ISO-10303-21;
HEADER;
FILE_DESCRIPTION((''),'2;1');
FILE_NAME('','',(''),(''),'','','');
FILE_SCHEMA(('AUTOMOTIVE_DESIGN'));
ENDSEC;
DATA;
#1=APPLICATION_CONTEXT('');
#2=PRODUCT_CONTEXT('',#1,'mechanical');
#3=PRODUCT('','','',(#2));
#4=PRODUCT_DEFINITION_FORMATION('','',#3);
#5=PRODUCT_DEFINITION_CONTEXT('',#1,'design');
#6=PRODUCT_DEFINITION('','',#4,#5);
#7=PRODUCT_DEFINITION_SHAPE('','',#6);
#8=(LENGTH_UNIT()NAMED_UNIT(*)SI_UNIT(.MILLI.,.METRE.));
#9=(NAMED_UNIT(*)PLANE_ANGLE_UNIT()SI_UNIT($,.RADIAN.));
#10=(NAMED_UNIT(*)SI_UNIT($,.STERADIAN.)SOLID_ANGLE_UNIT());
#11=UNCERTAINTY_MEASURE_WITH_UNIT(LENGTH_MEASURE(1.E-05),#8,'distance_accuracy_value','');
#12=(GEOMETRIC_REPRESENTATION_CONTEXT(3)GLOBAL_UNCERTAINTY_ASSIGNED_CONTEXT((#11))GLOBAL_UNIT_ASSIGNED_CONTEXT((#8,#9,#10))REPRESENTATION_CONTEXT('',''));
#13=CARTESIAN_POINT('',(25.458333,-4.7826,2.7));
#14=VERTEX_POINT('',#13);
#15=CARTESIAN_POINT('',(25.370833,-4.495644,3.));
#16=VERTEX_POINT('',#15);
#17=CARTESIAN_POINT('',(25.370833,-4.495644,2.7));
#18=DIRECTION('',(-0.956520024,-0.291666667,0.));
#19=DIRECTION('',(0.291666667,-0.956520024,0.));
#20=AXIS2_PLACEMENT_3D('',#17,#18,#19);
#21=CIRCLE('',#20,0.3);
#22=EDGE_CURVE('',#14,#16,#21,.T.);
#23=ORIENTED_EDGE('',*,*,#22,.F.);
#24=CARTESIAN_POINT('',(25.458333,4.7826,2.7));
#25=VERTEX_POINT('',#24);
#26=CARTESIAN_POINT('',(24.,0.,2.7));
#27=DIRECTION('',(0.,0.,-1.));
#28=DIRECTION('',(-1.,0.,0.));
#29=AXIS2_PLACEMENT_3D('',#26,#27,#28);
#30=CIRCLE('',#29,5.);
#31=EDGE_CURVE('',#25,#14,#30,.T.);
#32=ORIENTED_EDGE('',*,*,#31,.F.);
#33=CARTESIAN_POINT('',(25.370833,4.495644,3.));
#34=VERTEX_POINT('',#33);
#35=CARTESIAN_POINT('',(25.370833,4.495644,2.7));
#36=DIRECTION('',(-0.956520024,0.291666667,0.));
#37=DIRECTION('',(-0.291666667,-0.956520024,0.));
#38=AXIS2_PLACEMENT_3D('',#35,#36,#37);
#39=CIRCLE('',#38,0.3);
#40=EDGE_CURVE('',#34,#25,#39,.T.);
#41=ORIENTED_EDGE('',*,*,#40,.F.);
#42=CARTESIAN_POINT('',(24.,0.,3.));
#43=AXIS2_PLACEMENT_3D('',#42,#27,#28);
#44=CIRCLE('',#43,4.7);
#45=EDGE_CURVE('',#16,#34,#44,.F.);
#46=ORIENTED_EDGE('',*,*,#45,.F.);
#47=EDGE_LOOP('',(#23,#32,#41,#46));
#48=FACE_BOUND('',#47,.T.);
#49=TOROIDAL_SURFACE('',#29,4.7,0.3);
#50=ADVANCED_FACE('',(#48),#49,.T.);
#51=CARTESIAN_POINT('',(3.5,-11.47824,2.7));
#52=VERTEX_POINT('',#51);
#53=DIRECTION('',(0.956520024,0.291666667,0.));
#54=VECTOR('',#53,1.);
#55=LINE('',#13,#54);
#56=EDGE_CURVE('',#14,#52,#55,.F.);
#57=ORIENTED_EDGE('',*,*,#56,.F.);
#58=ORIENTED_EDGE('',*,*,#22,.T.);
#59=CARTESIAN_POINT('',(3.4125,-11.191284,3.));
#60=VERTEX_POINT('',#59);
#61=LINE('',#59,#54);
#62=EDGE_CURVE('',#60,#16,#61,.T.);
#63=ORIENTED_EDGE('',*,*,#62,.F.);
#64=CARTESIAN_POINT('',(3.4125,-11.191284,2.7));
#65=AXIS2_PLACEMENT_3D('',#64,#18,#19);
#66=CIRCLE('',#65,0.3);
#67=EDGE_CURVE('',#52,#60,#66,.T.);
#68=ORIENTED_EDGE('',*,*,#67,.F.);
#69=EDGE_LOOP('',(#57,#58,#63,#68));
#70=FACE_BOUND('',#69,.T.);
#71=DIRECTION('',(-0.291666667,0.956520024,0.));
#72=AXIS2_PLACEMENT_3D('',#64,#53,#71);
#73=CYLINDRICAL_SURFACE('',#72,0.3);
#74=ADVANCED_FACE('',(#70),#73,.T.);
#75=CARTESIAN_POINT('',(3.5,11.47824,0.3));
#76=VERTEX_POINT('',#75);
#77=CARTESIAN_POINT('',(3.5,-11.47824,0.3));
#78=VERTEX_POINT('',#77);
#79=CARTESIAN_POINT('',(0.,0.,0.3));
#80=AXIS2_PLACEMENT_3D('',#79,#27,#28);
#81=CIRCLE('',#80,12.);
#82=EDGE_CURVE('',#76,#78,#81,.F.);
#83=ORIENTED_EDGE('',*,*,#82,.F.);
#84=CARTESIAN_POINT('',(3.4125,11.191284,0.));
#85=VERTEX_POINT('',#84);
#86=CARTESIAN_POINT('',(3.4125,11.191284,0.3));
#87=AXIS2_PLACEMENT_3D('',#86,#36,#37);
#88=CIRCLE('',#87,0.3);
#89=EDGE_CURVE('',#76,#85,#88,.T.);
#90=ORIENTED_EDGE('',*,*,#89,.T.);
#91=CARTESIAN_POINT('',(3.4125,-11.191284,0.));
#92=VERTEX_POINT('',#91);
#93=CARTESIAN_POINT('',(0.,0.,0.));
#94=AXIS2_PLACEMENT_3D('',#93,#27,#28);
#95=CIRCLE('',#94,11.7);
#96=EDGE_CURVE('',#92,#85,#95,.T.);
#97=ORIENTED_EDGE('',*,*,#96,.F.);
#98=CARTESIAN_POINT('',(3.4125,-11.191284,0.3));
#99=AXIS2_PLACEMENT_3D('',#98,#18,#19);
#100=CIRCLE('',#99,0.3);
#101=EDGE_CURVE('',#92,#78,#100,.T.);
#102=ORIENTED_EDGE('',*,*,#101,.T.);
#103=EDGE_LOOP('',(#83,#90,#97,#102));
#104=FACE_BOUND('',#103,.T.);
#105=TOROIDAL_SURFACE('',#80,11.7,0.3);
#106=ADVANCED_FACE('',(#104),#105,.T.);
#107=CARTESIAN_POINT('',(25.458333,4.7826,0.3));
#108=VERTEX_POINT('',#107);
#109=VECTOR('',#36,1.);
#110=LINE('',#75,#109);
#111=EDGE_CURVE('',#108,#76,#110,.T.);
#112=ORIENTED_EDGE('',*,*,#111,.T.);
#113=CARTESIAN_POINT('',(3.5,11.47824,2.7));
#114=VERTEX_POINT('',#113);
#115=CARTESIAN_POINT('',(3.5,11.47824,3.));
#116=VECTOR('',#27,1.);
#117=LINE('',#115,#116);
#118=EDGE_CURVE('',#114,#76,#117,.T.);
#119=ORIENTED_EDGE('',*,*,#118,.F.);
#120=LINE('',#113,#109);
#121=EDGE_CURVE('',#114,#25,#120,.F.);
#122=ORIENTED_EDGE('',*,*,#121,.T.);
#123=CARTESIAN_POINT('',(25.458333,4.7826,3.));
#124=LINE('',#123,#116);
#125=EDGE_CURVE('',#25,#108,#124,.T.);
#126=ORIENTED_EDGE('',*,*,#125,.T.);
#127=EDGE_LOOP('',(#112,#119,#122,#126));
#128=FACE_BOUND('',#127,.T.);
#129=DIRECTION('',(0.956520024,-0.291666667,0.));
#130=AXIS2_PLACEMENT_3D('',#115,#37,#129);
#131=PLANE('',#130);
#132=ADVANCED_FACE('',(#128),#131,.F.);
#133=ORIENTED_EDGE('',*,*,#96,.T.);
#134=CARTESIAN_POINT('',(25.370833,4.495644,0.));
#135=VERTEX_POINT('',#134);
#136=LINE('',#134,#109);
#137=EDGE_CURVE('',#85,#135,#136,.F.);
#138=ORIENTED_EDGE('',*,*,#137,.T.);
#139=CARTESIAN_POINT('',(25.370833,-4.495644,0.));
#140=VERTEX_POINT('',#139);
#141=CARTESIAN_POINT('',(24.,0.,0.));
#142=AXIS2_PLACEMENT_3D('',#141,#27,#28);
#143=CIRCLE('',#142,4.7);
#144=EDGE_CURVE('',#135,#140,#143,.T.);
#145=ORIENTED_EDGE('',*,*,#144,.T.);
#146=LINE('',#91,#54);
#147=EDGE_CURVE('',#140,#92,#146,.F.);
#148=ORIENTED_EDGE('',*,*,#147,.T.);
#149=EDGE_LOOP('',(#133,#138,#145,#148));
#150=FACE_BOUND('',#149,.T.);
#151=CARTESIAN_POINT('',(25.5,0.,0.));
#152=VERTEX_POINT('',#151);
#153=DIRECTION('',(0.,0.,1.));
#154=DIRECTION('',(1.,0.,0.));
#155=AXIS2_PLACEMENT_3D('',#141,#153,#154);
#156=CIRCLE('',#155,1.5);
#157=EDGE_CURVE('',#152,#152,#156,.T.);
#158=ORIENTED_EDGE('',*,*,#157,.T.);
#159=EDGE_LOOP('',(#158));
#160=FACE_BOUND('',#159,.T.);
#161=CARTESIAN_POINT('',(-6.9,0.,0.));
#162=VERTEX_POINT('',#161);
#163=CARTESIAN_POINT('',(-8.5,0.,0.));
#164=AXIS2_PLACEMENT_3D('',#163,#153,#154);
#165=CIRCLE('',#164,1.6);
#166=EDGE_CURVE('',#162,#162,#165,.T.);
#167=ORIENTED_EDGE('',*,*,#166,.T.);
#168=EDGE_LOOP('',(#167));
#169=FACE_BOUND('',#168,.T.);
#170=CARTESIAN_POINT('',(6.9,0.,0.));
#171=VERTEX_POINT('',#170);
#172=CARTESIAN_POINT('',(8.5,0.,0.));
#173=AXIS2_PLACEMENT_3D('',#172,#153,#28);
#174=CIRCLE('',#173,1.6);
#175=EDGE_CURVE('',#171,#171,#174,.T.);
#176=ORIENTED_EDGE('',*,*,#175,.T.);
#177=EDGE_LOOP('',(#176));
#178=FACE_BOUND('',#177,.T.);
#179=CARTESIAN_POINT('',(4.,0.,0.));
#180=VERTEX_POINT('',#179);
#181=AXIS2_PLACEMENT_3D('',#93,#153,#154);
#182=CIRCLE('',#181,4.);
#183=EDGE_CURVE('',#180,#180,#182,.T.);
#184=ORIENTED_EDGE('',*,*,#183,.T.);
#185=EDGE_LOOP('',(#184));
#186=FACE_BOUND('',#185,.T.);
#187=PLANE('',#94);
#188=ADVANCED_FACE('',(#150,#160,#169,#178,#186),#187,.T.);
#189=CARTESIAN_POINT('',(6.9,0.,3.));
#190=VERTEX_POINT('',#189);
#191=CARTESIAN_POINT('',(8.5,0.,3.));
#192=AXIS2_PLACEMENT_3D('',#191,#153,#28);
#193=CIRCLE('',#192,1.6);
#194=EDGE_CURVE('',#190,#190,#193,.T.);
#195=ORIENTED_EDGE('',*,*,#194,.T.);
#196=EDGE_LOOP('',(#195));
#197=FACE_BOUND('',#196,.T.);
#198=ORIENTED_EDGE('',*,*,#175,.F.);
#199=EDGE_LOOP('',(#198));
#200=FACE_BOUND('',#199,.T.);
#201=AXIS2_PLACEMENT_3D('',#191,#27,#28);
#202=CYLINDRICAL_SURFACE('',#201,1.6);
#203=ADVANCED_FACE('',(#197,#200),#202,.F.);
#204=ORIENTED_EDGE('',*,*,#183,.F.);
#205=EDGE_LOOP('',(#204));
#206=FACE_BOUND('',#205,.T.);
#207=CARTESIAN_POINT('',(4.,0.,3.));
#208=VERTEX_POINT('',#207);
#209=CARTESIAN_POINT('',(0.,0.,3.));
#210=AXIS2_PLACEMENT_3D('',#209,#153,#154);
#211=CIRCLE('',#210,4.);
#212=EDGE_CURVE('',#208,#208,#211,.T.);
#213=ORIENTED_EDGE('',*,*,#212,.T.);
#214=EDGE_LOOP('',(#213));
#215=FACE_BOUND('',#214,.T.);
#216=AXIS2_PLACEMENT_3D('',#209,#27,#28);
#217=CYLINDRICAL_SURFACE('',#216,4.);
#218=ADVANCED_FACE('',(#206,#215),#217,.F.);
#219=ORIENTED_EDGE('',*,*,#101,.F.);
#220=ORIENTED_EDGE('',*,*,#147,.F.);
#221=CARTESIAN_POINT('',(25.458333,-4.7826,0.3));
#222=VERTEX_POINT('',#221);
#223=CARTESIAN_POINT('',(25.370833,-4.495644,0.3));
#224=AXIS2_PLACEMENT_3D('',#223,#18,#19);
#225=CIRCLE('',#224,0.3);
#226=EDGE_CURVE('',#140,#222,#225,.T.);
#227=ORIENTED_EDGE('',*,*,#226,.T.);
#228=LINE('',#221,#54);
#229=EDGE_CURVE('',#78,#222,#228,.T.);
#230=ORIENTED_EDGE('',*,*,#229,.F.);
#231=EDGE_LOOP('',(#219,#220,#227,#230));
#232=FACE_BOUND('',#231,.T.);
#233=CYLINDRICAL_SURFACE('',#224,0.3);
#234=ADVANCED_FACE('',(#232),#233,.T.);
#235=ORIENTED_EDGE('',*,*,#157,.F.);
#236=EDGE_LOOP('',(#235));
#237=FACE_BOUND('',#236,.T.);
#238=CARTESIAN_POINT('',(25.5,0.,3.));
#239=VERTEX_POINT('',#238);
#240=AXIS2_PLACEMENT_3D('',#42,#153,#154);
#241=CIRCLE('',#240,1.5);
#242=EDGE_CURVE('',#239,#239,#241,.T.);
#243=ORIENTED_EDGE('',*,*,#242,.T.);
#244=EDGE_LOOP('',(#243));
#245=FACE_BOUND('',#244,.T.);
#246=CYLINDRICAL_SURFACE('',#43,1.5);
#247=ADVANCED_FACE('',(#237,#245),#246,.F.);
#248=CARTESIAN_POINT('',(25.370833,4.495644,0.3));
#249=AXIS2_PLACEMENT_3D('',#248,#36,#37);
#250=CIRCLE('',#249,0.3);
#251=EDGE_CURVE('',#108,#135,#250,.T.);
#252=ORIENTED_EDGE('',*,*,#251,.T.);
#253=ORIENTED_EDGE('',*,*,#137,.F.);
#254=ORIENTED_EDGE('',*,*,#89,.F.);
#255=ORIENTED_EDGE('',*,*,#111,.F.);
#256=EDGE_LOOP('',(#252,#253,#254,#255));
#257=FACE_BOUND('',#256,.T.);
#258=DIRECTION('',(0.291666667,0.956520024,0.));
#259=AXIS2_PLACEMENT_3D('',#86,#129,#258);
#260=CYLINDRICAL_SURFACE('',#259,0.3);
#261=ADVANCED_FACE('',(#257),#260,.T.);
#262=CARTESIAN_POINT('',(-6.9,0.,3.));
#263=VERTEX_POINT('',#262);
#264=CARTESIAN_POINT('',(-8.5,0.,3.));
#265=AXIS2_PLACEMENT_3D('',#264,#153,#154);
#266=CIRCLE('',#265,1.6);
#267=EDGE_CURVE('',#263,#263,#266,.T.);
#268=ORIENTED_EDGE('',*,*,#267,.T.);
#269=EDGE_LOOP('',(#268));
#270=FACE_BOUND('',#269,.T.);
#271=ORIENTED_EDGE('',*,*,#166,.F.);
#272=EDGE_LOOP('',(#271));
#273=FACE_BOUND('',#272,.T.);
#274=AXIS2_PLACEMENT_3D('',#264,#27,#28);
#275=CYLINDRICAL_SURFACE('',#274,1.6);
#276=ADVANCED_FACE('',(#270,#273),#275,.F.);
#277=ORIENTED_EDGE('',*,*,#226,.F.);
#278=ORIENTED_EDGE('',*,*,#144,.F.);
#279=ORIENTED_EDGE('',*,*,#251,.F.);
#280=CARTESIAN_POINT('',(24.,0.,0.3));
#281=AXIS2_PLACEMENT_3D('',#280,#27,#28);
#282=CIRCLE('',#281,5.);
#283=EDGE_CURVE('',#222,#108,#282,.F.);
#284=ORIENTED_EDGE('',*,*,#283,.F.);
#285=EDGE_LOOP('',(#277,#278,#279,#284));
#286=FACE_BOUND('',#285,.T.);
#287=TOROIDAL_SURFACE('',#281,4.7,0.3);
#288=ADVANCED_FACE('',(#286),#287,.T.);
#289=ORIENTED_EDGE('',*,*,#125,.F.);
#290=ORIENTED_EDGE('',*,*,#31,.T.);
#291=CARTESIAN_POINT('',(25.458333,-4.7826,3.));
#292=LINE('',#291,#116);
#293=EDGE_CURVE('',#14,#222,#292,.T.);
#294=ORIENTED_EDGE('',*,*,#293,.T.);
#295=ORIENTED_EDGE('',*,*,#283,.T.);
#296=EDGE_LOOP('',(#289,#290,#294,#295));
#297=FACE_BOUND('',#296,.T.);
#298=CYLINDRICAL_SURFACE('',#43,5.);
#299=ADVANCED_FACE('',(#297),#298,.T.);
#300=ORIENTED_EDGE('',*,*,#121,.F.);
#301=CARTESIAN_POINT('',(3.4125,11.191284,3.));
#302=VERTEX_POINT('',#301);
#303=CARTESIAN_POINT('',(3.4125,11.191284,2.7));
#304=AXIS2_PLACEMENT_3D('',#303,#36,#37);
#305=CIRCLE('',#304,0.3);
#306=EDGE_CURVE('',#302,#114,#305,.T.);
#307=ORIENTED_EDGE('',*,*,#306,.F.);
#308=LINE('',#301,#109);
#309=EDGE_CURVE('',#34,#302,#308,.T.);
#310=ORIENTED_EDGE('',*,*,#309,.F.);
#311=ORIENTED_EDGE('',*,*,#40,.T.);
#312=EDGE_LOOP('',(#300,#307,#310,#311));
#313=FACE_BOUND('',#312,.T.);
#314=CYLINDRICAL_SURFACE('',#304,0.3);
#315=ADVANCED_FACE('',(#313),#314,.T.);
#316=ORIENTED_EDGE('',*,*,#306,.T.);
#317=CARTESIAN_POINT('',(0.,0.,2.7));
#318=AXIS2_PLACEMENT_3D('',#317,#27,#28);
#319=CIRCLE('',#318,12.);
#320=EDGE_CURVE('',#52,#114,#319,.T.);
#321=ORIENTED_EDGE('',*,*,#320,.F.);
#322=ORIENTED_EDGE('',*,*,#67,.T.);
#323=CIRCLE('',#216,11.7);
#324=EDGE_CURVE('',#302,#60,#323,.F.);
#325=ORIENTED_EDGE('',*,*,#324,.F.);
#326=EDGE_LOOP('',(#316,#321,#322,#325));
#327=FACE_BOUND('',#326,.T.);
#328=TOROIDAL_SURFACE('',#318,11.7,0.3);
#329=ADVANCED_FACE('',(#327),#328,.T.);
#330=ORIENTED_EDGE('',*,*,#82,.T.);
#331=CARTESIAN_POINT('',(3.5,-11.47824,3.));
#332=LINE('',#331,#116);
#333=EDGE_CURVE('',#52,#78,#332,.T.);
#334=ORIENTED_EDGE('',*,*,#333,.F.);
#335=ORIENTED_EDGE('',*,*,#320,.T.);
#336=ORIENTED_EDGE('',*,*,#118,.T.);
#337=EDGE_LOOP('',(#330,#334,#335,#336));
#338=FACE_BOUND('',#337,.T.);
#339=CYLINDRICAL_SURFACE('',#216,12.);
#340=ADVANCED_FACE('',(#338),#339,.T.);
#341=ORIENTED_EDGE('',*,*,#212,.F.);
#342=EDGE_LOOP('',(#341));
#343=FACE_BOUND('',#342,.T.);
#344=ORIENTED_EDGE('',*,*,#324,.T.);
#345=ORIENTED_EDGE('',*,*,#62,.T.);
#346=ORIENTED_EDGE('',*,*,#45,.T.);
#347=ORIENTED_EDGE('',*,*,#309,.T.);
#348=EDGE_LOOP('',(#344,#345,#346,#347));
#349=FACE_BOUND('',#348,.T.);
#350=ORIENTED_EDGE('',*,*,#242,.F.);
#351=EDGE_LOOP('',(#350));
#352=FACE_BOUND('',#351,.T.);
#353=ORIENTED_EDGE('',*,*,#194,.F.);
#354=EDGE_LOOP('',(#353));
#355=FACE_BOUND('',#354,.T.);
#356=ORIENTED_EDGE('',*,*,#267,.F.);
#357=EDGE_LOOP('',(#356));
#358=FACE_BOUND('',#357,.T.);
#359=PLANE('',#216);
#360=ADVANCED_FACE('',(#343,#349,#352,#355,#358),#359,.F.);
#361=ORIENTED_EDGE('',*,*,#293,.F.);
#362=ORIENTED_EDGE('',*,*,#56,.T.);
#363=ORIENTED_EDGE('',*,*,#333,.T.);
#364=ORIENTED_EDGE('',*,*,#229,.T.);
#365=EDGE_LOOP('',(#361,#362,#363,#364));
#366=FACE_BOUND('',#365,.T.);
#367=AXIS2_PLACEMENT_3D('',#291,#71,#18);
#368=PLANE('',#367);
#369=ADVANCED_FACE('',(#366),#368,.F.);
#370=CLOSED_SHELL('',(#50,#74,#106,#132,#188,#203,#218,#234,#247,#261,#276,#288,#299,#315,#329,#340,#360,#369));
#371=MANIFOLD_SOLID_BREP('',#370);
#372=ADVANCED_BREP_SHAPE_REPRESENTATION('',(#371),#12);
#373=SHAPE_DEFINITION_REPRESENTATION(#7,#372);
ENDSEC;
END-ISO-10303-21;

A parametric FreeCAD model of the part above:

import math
import FreeCAD as App
import Part
import Sketcher

V = App.Vector
Q = App.Units.Quantity


def edges_at(feature, points):
    """Names of the edges that pass closest to the given points."""
    edges = feature.Shape.Edges
    near = lambda p: min(range(len(edges)), key=lambda i: edges[i].distToShape(Part.Vertex(*p))[0])
    return sorted({f"Edge{near(p) + 1}" for p in points})

doc = App.newDocument("Part")
body = doc.addObject("PartDesign::Body", "Body")

# Sketch on XY plane
sketch1 = body.newObject("Sketcher::SketchObject", "Sketch")
sketch1.AttachmentSupport = (doc.getObject("XY_Plane"), [""])
sketch1.MapMode = "FlatFace"
sketch1.addGeometry([
    Part.LineSegment(V(25.5, 4.8, 0), V(3.5, 11.5, 0)),  # 0
    Part.ArcOfCircle(Part.Circle(V(0, 0, 0), V(0, 0, 1), 12), math.radians(73), math.radians(287)),  # 1
    Part.LineSegment(V(3.5, -11.5, 0), V(25.5, -4.8, 0)),  # 2
    Part.ArcOfCircle(Part.Circle(V(24, 0, 0), V(0, 0, 1), 5), math.radians(-73), math.radians(73)),  # 3
    Part.Circle(V(24, 0, 0), V(0, 0, 1), 1.5),  # 4
    Part.Circle(V(8.5, 0, 0), V(0, 0, 1), 1.6),  # 5
    Part.Circle(V(0, 0, 0), V(0, 0, 1), 4),  # 6
    Part.Circle(V(-8.5, 0, 0), V(0, 0, 1), 1.6),  # 7
], False)
sketch1.addConstraint([
    Sketcher.Constraint("Tangent", 0, 2, 1, 1),
    Sketcher.Constraint("Tangent", 1, 2, 2, 1),
    Sketcher.Constraint("Tangent", 2, 2, 3, 1),
    Sketcher.Constraint("Tangent", 3, 2, 0, 1),
    Sketcher.Constraint("Coincident", 1, 3, -1, 1),
    Sketcher.Constraint("Coincident", 6, 3, -1, 1),
    Sketcher.Constraint("Coincident", 4, 3, 3, 3),
    Sketcher.Constraint("Equal", 5, 7),
    Sketcher.Constraint("Symmetric", 5, 3, 7, 3, -1, 1),
    Sketcher.Constraint("PointOnObject", 3, 3, -1),
    Sketcher.Constraint("PointOnObject", 5, 3, -1),
    Sketcher.Constraint("Diameter", 4, Q("3 mm")),
    Sketcher.Constraint("Diameter", 6, Q("8 mm")),
    Sketcher.Constraint("Radius", 1, Q("12 mm")),
    Sketcher.Constraint("Radius", 3, Q("5 mm")),
    Sketcher.Constraint("Diameter", 5, Q("3.2 mm")),
    Sketcher.Constraint("DistanceX", -1, 1, 3, 3, Q("24 mm")),
    Sketcher.Constraint("DistanceX", 7, 3, 5, 3, Q("17 mm")),
])
pad1 = body.newObject("PartDesign::Pad", "Pad")
pad1.Profile = sketch1
pad1.Length = 3
doc.recompute()

fillet = body.newObject("PartDesign::Fillet", "Fillet")
fillet.Base = (pad1, edges_at(pad1, [
    (29, 0, 3),
    (14.479, 8.13, 3),
    (-12, 0, 3),
    (14.479, 8.13, 0),
    (29, 0, 0),
    (14.479, -8.13, 0),
    (-12, 0, 0),
    (14.479, -8.13, 3),
]))
fillet.Radius = 0.3

doc.recompute()
